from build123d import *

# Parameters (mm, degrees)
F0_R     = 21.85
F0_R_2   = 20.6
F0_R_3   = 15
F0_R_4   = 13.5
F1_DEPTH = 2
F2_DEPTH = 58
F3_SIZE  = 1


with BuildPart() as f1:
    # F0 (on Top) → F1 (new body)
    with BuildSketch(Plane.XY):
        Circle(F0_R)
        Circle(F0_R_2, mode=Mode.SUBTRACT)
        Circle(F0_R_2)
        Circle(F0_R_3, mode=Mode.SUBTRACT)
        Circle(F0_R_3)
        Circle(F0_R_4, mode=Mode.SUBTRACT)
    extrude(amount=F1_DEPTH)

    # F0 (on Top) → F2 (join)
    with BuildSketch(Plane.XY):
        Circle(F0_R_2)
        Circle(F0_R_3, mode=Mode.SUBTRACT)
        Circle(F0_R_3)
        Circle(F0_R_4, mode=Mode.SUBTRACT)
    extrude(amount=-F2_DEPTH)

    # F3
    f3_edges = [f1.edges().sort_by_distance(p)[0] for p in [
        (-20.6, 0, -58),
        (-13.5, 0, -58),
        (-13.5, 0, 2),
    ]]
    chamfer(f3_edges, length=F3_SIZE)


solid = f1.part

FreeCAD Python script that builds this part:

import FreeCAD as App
import Part
import Sketcher
Q = App.Units.Quantity


def edges_at(feature, points):
    """Names of the edges that pass closest to the given points."""
    edges = feature.Shape.Edges
    near = lambda p: min(range(len(edges)), key=lambda i: edges[i].distToShape(Part.Vertex(*p))[0])
    return sorted({f"Edge{near(p) + 1}" for p in points})

doc = App.newDocument("Part")
params = doc.addObject("Spreadsheet::Sheet", "Params")
for row, (alias, value) in enumerate([
    ("sketch1_diameter", "27 mm"),
    ("sketch1_diameter2", "43.7 mm"),
    ("pad1_length", "2 mm"),
    ("sketch2_diameter", "27 mm"),
    ("sketch2_diameter2", "41.2 mm"),
    ("pad2_length", "58 mm"),
    ("chamfer_size", "1 mm"),
], start=1):
    params.set(f"A{row}", alias)
    params.set(f"B{row}", "=" + value)
    params.setAlias(f"B{row}", alias)

body = doc.addObject("PartDesign::Body", "Body")

sketch1 = doc.addObject("Sketcher::SketchObject", "Sketch")
body.addObject(sketch1)
sketch1.AttachmentSupport = (doc.XY_Plane, [""])
sketch1.MapMode = "FlatFace"
sketch1.addGeometry(Part.Circle(App.Vector(0, 0, 0), App.Vector(0, 0, 1), 21.85), False)
sketch1.addGeometry(Part.Circle(App.Vector(0, 0, 0), App.Vector(0, 0, 1), 13.5), False)
sketch1.addConstraint(Sketcher.Constraint("Coincident", 0, 3, -1, 1))
sketch1.addConstraint(Sketcher.Constraint("Coincident", 1, 3, -1, 1))
sketch1.addConstraint(Sketcher.Constraint("Diameter", 1, Q("27 mm")))
sketch1.addConstraint(Sketcher.Constraint("Diameter", 0, Q("43.7 mm")))
sketch1.setExpression("Constraints[2]", "Params.sketch1_diameter")
sketch1.setExpression("Constraints[3]", "Params.sketch1_diameter2")
pad1 = doc.addObject("PartDesign::Pad", "Pad")
body.addObject(pad1)
pad1.Profile = sketch1
pad1.setExpression("Length", "Params.pad1_length")

sketch2 = doc.addObject("Sketcher::SketchObject", "Sketch001")
body.addObject(sketch2)
sketch2.AttachmentSupport = (doc.XY_Plane, [""])
sketch2.MapMode = "FlatFace"
sketch2.addGeometry(Part.Circle(App.Vector(0, 0, 0), App.Vector(0, 0, 1), 20.6), False)
sketch2.addGeometry(Part.Circle(App.Vector(0, 0, 0), App.Vector(0, 0, 1), 13.5), False)
sketch2.addConstraint(Sketcher.Constraint("Coincident", 0, 3, -1, 1))
sketch2.addConstraint(Sketcher.Constraint("Coincident", 1, 3, -1, 1))
sketch2.addConstraint(Sketcher.Constraint("Diameter", 1, Q("27 mm")))
sketch2.addConstraint(Sketcher.Constraint("Diameter", 0, Q("41.2 mm")))
sketch2.setExpression("Constraints[2]", "Params.sketch2_diameter")
sketch2.setExpression("Constraints[3]", "Params.sketch2_diameter2")
pad2 = doc.addObject("PartDesign::Pad", "Pad001")
body.addObject(pad2)
pad2.Profile = sketch2
pad2.setExpression("Length", "Params.pad2_length")
pad2.Reversed = True
doc.recompute()

chamfer = doc.addObject("PartDesign::Chamfer", "Chamfer")
body.addObject(chamfer)
chamfer.Base = (pad2, edges_at(pad2, [(-20.6, 0, -58), (-13.5, 0, -58), (-13.5, 0, 2)]))
chamfer.setExpression("Size", "Params.chamfer_size")

doc.recompute()
